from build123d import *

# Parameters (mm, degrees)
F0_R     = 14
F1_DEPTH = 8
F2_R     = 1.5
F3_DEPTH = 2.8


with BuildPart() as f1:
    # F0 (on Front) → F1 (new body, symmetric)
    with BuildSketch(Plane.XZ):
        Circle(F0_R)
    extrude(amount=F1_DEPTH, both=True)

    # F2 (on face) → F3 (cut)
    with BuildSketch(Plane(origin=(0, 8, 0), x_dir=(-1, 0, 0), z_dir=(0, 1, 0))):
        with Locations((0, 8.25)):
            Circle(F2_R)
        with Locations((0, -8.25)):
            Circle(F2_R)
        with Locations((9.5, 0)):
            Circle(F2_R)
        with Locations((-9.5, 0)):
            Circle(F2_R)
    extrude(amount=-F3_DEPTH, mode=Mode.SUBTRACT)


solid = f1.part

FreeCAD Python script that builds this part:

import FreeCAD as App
import Part
import Sketcher
from FreeCAD import Vector

doc = App.newDocument("Part")
body = doc.addObject("PartDesign::Body", "Body")

# Sketch on XZ plane
sketch1 = doc.addObject("Sketcher::SketchObject", "Sketch")
body.addObject(sketch1)
sketch1.AttachmentSupport = (doc.XZ_Plane, [""])
sketch1.MapMode = "FlatFace"
sketch1.addGeometry(Part.Circle(Vector(0, 0, 0), Vector(0, 0, 1), 14), False)
sketch1.addConstraint([
    Sketcher.Constraint("Coincident", 0, 3, -1, 1),
    Sketcher.Constraint("Diameter", 0, 28.0),
])
pad1 = doc.addObject("PartDesign::Pad", "Pad")
body.addObject(pad1)
pad1.Profile = sketch1
pad1.Length = 16
pad1.Midplane = True

# Sketch on XZ plane
sketch2 = doc.addObject("Sketcher::SketchObject", "Sketch001")
body.addObject(sketch2)
sketch2.AttachmentSupport = (doc.XZ_Plane, [""])
sketch2.MapMode = "FlatFace"
sketch2.AttachmentOffset = App.Placement(Vector(0, 0, -8), App.Rotation())
sketch2.addGeometry([
    Part.Circle(Vector(0, 8.2, 0), Vector(0, 0, 1), 1.5),
    Part.Circle(Vector(0, -8.2, 0), Vector(0, 0, 1), 1.5),
    Part.Circle(Vector(-9.5, 0, 0), Vector(0, 0, 1), 1.5),
    Part.Circle(Vector(9.5, 0, 0), Vector(0, 0, 1), 1.5),
], False)
sketch2.addConstraint([
    Sketcher.Constraint("Equal", 0, 1),
    Sketcher.Constraint("Equal", 1, 2),
    Sketcher.Constraint("Equal", 2, 3),
    Sketcher.Constraint("Symmetric", 0, 3, 1, 3, -1, 1),
    Sketcher.Constraint("Symmetric", 2, 3, 3, 3, -1, 1),
    Sketcher.Constraint("PointOnObject", 0, 3, -2),
    Sketcher.Constraint("PointOnObject", 2, 3, -1),
    Sketcher.Constraint("Diameter", 0, 3.0),
    Sketcher.Constraint("DistanceX", 2, 3, 3, 3, 19.0),
    Sketcher.Constraint("DistanceY", 1, 3, 0, 3, 16.5),
])
pocket1 = doc.addObject("PartDesign::Pocket", "Pocket")
body.addObject(pocket1)
pocket1.Profile = sketch2
pocket1.Length = 2.8
pocket1.Reversed = True

doc.recompute()
